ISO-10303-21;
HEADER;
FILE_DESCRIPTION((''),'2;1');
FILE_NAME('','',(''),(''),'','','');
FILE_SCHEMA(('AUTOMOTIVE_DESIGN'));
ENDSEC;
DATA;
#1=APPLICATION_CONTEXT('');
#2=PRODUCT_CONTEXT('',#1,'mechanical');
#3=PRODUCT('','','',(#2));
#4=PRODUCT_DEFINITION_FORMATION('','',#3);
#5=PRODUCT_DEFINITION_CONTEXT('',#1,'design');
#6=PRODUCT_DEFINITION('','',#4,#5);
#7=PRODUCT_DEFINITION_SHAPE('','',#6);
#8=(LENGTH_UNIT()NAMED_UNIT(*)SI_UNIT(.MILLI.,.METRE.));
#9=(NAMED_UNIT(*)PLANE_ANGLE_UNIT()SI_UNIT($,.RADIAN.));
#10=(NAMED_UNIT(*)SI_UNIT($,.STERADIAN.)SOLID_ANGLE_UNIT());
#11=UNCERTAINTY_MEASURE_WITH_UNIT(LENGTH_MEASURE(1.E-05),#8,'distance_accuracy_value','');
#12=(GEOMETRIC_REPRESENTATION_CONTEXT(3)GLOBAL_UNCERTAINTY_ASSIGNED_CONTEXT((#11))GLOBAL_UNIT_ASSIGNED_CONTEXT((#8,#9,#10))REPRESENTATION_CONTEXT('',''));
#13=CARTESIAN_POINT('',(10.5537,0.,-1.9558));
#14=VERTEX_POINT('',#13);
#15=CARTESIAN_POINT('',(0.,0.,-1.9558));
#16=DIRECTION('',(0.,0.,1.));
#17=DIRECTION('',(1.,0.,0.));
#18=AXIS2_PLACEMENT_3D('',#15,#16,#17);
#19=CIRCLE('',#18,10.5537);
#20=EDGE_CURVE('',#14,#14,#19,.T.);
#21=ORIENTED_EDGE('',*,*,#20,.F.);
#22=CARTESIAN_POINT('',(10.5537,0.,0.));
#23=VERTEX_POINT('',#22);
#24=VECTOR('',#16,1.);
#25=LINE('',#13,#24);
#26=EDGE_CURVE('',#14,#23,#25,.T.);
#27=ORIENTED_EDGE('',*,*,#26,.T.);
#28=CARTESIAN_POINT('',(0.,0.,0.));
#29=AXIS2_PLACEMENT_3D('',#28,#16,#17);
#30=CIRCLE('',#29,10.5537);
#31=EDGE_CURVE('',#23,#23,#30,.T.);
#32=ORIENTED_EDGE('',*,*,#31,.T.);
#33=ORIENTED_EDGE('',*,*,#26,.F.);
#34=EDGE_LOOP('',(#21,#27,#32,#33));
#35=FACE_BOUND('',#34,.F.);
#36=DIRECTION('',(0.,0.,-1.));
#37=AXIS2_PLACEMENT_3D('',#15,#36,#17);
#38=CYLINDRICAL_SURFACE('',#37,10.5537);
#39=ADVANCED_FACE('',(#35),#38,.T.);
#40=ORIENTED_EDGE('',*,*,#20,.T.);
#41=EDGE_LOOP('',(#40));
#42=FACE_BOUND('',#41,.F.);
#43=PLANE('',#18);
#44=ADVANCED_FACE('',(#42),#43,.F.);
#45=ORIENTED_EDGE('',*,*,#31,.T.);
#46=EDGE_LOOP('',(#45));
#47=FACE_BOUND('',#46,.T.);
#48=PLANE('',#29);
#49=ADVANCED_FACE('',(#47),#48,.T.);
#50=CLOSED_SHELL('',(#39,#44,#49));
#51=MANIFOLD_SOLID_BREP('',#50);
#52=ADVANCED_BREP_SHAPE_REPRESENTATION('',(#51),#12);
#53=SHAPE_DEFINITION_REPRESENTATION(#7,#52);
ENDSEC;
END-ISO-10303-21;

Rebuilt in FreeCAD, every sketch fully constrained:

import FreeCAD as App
import Part
import Sketcher

V = App.Vector
Q = App.Units.Quantity

doc = App.newDocument("Part")
body = doc.addObject("PartDesign::Body", "Body")

sketch1 = doc.addObject("Sketcher::SketchObject", "Sketch")
body.addObject(sketch1)
sketch1.AttachmentSupport = (doc.XY_Plane, [""])
sketch1.MapMode = "FlatFace"
sketch1.addGeometry(Part.Circle(V(0, 0, 0), V(0, 0, 1), 11), False)
sketch1.addConstraint([
    Sketcher.Constraint("Coincident", 0, 3, -1, 1),
    Sketcher.Constraint("Diameter", 0, Q("0.831 in")),
])
pad1 = doc.addObject("PartDesign::Pad", "Pad")
body.addObject(pad1)
pad1.Profile = sketch1
pad1.Length = Q("0.077 in")
body2 = doc.addObject("PartDesign::Body", "Body001")
doc.recompute()

body.Placement = App.Placement(V(0, 0, -1.9558), App.Rotation(V(0, 0, 1), 0))
boolean = doc.addObject("PartDesign::Boolean", "Boolean")
body2.addObject(boolean)
boolean.Type = "Fuse"
boolean.addObjects([body])

doc.recompute()
